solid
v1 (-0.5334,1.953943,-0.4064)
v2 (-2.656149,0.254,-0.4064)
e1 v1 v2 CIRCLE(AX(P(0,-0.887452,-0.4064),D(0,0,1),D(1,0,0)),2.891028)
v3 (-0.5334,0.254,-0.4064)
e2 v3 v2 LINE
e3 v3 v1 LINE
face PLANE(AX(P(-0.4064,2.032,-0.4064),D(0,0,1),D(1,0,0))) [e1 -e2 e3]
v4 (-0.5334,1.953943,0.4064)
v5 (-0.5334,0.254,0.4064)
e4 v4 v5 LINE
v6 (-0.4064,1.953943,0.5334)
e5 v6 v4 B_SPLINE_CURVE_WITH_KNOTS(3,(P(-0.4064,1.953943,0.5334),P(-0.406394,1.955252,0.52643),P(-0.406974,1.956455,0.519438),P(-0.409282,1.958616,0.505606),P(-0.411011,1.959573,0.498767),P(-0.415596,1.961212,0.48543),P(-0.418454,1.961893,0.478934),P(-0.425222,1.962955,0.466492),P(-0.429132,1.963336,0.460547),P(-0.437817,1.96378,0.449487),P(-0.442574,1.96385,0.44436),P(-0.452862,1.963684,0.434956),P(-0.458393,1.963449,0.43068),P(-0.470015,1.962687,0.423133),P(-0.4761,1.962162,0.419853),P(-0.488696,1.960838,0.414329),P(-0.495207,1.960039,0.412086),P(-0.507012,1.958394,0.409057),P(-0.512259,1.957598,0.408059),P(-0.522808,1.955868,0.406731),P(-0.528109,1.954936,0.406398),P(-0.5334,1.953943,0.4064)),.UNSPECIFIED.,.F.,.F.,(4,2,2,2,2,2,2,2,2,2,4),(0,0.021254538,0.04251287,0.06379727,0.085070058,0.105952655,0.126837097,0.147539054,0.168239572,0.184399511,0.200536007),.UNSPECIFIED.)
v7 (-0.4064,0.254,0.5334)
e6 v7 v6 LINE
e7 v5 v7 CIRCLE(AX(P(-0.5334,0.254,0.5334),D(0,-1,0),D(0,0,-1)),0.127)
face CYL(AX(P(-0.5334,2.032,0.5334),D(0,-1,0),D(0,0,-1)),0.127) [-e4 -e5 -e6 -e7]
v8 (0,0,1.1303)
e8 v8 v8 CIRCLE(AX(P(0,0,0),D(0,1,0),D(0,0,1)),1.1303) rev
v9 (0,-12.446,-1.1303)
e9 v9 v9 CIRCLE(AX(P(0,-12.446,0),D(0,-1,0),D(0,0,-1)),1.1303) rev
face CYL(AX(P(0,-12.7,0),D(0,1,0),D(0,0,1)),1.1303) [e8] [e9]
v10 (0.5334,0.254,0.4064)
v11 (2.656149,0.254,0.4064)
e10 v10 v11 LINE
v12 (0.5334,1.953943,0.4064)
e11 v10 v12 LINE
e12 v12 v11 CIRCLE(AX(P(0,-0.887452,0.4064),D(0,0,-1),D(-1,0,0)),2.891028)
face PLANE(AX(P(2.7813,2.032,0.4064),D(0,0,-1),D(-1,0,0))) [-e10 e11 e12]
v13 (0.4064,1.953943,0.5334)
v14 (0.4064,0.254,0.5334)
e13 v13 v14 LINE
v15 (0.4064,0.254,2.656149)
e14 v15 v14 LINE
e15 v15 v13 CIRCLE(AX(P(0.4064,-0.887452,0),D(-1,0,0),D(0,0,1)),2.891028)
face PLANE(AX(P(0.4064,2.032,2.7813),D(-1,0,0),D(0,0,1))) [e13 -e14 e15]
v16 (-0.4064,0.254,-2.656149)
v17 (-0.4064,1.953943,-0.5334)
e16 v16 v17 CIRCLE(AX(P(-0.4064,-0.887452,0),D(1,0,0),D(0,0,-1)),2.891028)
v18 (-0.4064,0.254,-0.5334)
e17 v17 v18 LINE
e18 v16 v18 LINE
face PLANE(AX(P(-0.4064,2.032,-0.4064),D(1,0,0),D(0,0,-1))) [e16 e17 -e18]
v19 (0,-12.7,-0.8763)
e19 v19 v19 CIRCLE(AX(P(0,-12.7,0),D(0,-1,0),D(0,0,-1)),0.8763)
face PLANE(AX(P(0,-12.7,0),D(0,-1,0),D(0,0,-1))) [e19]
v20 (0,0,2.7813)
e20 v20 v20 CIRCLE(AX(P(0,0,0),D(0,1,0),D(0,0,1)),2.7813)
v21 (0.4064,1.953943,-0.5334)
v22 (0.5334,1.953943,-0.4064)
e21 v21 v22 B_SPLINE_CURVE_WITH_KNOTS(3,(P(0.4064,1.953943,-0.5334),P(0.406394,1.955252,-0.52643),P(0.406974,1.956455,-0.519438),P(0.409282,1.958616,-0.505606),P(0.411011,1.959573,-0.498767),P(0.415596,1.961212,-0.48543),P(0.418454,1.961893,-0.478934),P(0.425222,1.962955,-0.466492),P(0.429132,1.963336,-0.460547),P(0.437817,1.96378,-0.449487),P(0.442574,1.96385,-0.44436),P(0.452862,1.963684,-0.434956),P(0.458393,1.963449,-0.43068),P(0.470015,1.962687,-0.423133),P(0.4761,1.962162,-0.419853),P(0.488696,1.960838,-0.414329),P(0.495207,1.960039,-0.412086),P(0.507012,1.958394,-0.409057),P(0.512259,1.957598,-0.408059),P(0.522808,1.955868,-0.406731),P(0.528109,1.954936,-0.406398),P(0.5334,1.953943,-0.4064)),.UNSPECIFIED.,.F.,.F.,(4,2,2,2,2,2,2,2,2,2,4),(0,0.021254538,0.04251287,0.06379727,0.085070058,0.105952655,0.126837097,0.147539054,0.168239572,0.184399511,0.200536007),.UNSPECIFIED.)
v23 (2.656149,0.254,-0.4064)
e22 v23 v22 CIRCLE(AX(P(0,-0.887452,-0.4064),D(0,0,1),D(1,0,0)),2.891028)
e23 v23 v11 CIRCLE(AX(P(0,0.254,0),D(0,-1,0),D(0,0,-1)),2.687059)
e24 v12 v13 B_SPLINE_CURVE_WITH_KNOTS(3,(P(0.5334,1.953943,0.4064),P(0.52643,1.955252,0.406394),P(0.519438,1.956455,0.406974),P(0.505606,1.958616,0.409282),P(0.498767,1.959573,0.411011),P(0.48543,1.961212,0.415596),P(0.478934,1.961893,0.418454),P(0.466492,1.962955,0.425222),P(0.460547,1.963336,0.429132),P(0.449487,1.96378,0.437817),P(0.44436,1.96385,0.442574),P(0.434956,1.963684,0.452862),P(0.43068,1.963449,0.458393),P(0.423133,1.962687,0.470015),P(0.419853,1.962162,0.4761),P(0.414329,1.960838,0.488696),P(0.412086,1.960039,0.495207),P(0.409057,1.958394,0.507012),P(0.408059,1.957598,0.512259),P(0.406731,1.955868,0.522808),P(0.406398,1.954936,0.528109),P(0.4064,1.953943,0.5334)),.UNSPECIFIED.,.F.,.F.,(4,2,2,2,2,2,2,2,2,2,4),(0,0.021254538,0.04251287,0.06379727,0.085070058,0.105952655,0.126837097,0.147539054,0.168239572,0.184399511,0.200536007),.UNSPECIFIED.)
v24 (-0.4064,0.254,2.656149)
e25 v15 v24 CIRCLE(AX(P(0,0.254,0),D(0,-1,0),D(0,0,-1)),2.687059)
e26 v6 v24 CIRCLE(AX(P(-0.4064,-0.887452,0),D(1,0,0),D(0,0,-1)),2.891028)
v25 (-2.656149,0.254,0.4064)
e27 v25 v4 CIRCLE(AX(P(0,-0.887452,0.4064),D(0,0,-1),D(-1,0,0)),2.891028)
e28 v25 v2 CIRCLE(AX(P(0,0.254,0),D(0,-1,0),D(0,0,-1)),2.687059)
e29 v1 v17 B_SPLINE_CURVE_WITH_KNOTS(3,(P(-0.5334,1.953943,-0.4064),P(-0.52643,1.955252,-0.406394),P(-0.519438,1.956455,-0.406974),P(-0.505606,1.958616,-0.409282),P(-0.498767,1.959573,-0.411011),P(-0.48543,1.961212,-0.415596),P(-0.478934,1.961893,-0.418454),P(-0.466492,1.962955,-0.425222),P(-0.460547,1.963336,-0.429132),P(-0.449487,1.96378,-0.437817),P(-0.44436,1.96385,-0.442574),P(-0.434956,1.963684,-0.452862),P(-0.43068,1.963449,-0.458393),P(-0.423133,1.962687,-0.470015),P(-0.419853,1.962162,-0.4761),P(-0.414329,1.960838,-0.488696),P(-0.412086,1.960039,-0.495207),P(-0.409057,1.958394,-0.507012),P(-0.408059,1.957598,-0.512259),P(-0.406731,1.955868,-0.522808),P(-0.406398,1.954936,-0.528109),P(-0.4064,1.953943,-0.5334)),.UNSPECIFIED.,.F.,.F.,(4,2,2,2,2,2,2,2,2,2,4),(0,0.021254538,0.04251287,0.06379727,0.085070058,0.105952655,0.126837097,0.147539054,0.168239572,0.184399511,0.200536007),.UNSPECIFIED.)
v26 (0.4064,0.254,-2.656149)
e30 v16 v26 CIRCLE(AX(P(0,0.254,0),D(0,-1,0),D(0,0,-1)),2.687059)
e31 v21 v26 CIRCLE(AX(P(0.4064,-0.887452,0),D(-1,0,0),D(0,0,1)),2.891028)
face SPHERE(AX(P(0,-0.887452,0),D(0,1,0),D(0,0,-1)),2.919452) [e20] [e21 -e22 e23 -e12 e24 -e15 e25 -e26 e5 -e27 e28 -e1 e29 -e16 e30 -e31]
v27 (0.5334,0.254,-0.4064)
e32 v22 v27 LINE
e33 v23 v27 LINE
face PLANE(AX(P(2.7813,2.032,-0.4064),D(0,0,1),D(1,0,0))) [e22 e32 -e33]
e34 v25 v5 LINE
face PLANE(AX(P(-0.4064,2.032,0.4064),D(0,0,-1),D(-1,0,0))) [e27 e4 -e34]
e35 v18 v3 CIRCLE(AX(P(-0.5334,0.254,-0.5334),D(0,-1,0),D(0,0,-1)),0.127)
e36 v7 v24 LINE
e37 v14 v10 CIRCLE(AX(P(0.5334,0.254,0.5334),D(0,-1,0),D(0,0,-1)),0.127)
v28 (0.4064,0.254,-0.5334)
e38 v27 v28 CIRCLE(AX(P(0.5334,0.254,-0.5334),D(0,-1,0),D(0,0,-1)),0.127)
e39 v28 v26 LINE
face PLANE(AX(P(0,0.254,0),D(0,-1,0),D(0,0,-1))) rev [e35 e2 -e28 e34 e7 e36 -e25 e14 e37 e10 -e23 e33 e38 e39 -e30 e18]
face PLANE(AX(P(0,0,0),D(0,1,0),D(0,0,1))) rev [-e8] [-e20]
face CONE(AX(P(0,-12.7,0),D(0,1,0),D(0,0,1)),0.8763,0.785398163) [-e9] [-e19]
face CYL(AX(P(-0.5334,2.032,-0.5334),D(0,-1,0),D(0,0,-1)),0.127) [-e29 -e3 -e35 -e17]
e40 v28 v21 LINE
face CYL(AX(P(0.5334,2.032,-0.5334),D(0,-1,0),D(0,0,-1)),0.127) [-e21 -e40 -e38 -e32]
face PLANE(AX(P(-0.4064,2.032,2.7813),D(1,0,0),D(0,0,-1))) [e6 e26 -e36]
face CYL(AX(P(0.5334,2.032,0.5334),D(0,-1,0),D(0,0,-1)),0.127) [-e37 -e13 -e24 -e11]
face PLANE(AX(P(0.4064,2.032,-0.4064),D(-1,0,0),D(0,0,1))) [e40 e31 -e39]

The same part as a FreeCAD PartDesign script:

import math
import FreeCAD as App
import Part
import Sketcher
from FreeCAD import Vector
Q = App.Units.Quantity


def edges_at(feature, points):
    """Names of the edges that pass closest to the given points."""
    edges = feature.Shape.Edges
    near = lambda p: min(range(len(edges)), key=lambda i: edges[i].distToShape(Part.Vertex(*p))[0])
    return sorted({f"Edge{near(p) + 1}" for p in points})


def add_polygon(sketch, points):
    """Adds a closed chain of lines whose ends are joined by coincident constraints."""
    first, n = sketch.GeometryCount, len(points)
    for a, b in zip(points, points[1:] + points[:1]):
        sketch.addGeometry(Part.LineSegment(App.Vector(*a, 0), App.Vector(*b, 0)), False)
    for i in range(n):
        sketch.addConstraint(Sketcher.Constraint("Coincident", first + i, 2, first + (i + 1) % n, 1))

doc = App.newDocument("Part")
body = doc.addObject("PartDesign::Body", "Body")

# Sketch on YZ plane
sketch1 = doc.addObject("Sketcher::SketchObject", "Sketch")
body.addObject(sketch1)
sketch1.AttachmentSupport = (doc.YZ_Plane, [""])
sketch1.MapMode = "FlatFace"
sketch1.addGeometry([
    Part.LineSegment(Vector(0, 0, 0), Vector(0, -2.8, 0)),
    Part.ArcOfCircle(Part.Circle(Vector(-0.9, 0, 0), Vector(0, 0, 1), 2.9), math.radians(-72), math.radians(0)),
    Part.LineSegment(Vector(2, 0, 0), Vector(0, 0, 0)),
], False)
sketch1.addConstraint([
    Sketcher.Constraint("Coincident", 0, 2, 1, 1),
    Sketcher.Constraint("Coincident", 1, 2, 2, 1),
    Sketcher.Constraint("Coincident", 2, 2, 0, 1),
    Sketcher.Constraint("Vertical", 0),
    Sketcher.Constraint("Horizontal", 2),
    Sketcher.Constraint("Coincident", 2, 2, -1, 1),
    Sketcher.Constraint("PointOnObject", 1, 3, -1),
    Sketcher.Constraint("DistanceX", 2, 2, 2, 1, Q("0.08 in")),
    Sketcher.Constraint("DistanceY", 0, 2, 0, 1, Q("0.1095 in")),
])
revolution = doc.addObject("PartDesign::Revolution", "Revolution")
body.addObject(revolution)
revolution.Profile = sketch1
revolution.ReferenceAxis = (sketch1, ["H_Axis"])
revolution.Angle = 360

# Sketch on XZ plane
sketch2 = doc.addObject("Sketcher::SketchObject", "Sketch001")
body.addObject(sketch2)
sketch2.AttachmentSupport = (doc.XZ_Plane, [""])
sketch2.MapMode = "FlatFace"
sketch2.addGeometry(Part.Circle(Vector(0, 0, 0), Vector(0, 0, 1), 1.1), False)
sketch2.addConstraint([
    Sketcher.Constraint("Coincident", 0, 3, -1, 1),
    Sketcher.Constraint("Diameter", 0, Q("0.089 in")),
])
pad1 = doc.addObject("PartDesign::Pad", "Pad")
body.addObject(pad1)
pad1.Profile = sketch2
pad1.Length = Q("0.5 in")
doc.recompute()

chamfer = doc.addObject("PartDesign::Chamfer", "Chamfer")
body.addObject(chamfer)
chamfer.Base = (pad1, edges_at(pad1, [(0, -12.7, -1.13)]))
chamfer.Size = Q("0.01 in")

# Sketch on XZ plane
sketch3 = doc.addObject("Sketcher::SketchObject", "Sketch002")
body.addObject(sketch3)
sketch3.AttachmentSupport = (doc.XZ_Plane, [""])
sketch3.MapMode = "FlatFace"
sketch3.AttachmentOffset = App.Placement(Vector(0, 0, -0.01 * 25.4), App.Rotation())
add_polygon(sketch3, [(-0.4, -2.8), (-0.4, -0.4), (-2.8, -0.4), (-2.8, 0.4), (-0.4, 0.4), (-0.4, 2.8), (0.4, 2.8), (0.4, 0.4), (2.8, 0.4), (2.8, -0.4), (0.4, -0.4), (0.4, -2.8)])  # lines 0-11
sketch3.addConstraint([
    Sketcher.Constraint("Vertical", 0),
    Sketcher.Constraint("Horizontal", 1),
    Sketcher.Constraint("Vertical", 2),
    Sketcher.Constraint("Horizontal", 3),
    Sketcher.Constraint("Vertical", 4),
    Sketcher.Constraint("Horizontal", 5),
    Sketcher.Constraint("Vertical", 6),
    Sketcher.Constraint("Horizontal", 7),
    Sketcher.Constraint("Vertical", 8),
    Sketcher.Constraint("Horizontal", 9),
    Sketcher.Constraint("Vertical", 10),
    Sketcher.Constraint("Horizontal", 11),
    Sketcher.Constraint("Symmetric", 0, 2, 6, 2, -1, 1),
    Sketcher.Constraint("Symmetric", 2, 2, 8, 2, -1, 1),
    Sketcher.Constraint("Symmetric", 4, 2, 10, 2, -1, 1),
    Sketcher.Constraint("Symmetric", 3, 2, 6, 2, -2),
    Sketcher.Constraint("Equal", 9, 0),
    Sketcher.Constraint("Equal", 11, 2),
    Sketcher.Constraint("DistanceX", 5, 1, 5, 2, Q("0.032 in")),
    Sketcher.Constraint("DistanceX", 1, 2, 1, 1, Q("0.0935 in")),
])
pocket1 = doc.addObject("PartDesign::Pocket", "Pocket")
body.addObject(pocket1)
pocket1.Profile = sketch3
pocket1.Type = "ThroughAll"
doc.recompute()

fillet = doc.addObject("PartDesign::Fillet", "Fillet")
body.addObject(fillet)
fillet.Base = (pocket1, edges_at(pocket1, [
    (0.406, 1.114, -0.406),
    (-0.406, 1.114, -0.406),
    (-0.406, 1.114, 0.406),
    (0.406, 1.114, 0.406),
]))
fillet.Radius = Q("0.005 in")

doc.recompute()
